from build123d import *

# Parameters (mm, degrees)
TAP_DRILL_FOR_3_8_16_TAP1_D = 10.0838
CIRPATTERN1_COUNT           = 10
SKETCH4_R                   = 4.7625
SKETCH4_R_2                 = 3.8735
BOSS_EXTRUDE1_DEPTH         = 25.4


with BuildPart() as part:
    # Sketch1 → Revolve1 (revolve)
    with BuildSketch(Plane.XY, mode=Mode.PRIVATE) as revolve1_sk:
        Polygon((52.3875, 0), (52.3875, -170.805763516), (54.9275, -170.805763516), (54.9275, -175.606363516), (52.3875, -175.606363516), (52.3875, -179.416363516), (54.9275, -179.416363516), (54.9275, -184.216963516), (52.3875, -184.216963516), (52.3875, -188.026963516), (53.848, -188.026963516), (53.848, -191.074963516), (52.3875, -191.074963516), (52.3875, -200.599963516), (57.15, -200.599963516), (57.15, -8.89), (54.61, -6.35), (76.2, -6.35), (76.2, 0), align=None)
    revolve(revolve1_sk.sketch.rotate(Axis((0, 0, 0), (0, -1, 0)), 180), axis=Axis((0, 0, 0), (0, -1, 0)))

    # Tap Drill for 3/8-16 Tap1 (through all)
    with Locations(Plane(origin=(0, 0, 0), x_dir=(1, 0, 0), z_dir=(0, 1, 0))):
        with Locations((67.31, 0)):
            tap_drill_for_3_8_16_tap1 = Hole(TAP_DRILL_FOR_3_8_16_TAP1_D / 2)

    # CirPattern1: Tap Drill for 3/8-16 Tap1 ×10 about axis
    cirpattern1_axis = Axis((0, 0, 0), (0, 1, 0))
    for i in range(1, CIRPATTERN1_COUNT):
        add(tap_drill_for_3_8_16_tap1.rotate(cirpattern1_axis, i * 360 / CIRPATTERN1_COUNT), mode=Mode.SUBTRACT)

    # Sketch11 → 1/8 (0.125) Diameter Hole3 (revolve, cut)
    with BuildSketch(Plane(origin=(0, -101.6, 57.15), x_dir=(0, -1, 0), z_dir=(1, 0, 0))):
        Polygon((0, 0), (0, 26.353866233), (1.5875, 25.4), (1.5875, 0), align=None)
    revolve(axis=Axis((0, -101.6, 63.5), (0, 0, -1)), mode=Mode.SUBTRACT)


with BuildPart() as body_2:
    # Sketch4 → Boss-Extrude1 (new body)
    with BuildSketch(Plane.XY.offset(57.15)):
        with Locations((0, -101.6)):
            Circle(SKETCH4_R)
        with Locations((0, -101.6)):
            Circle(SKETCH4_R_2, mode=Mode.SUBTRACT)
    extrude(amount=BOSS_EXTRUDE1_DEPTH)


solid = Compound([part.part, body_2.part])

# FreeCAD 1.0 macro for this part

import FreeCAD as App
import Part
import Sketcher
from FreeCAD import Vector
Q = App.Units.Quantity


def add_polygon(sketch, points):
    """Adds a closed chain of lines whose ends are joined by coincident constraints."""
    first, n = sketch.GeometryCount, len(points)
    for a, b in zip(points, points[1:] + points[:1]):
        sketch.addGeometry(Part.LineSegment(App.Vector(*a, 0), App.Vector(*b, 0)), False)
    for i in range(n):
        sketch.addConstraint(Sketcher.Constraint("Coincident", first + i, 2, first + (i + 1) % n, 1))

doc = App.newDocument("Part")
body = doc.addObject("PartDesign::Body", "Body")

sketch1 = body.newObject("Sketcher::SketchObject", "Sketch")
sketch1.AttachmentSupport = (doc.getObject("XY_Plane"), [""])
sketch1.MapMode = "FlatFace"
add_polygon(sketch1, [(52.4, 0), (52.4, -170.8), (54.9, -170.8), (54.9, -175.6), (52.4, -175.6), (52.4, -179.4), (54.9, -179.4), (54.9, -184.2), (52.4, -184.2), (52.4, -188), (53.8, -188), (53.8, -191.1), (52.4, -191.1), (52.4, -200.6), (57.1, -200.6), (57.1, -8.9), (54.6, -6.3), (76.2, -6.3), (76.2, 0)])
sketch1.addConstraint([
    Sketcher.Constraint("Vertical", 0),
    Sketcher.Constraint("Horizontal", 1),
    Sketcher.Constraint("Vertical", 2),
    Sketcher.Constraint("Horizontal", 3),
    Sketcher.Constraint("Vertical", 4),
    Sketcher.Constraint("Horizontal", 5),
    Sketcher.Constraint("Vertical", 6),
    Sketcher.Constraint("Horizontal", 7),
    Sketcher.Constraint("Vertical", 8),
    Sketcher.Constraint("Horizontal", 9),
    Sketcher.Constraint("Vertical", 10),
    Sketcher.Constraint("Horizontal", 11),
    Sketcher.Constraint("Vertical", 12),
    Sketcher.Constraint("Horizontal", 13),
    Sketcher.Constraint("Vertical", 14),
    Sketcher.Constraint("Horizontal", 16),
    Sketcher.Constraint("Vertical", 17),
    Sketcher.Constraint("Horizontal", 18),
    Sketcher.Constraint("PointOnObject", 17, 2, -1),
    Sketcher.Constraint("Vertical", 0, 2, 3, 2),
    Sketcher.Constraint("Vertical", 2, 2, 5, 2),
    Sketcher.Constraint("Vertical", 4, 2, 7, 2),
    Sketcher.Constraint("Vertical", 8, 2, 11, 2),
    Sketcher.Constraint("Equal", 2, 6),
    Sketcher.Constraint("Equal", 4, 8),
    Sketcher.Constraint("DistanceX", 1, 1, 1, 2, Q("0.1 in")),
    Sketcher.Constraint("DistanceX", -1, 1, 16, 2, Q("3 in")),
    Sketcher.Constraint("Angle", 15, Q("135 deg")),
    Sketcher.Constraint("DistanceX", 16, 1, 16, 2, Q("0.85 in")),
    Sketcher.Constraint("DistanceY", 4, 2, 4, 1, Q("0.15 in")),
    Sketcher.Constraint("DistanceY", 10, 2, 10, 1, Q("0.12 in")),
    Sketcher.Constraint("DistanceY", 17, 1, 17, 2, Q("0.25 in")),
    Sketcher.Constraint("DistanceX", 15, 2, 14, 2, Q("0.1 in")),
    Sketcher.Constraint("DistanceX", 13, 1, 13, 2, Q("0.1875 in")),
    Sketcher.Constraint("DistanceY", 2, 2, 2, 1, Q("0.189 in")),
    Sketcher.Constraint("DistanceY", 12, 2, 12, 1, Q("0.375 in")),
    Sketcher.Constraint("DistanceX", -1, 1, 9, 2, Q("2.12 in")),
    Sketcher.Constraint("DistanceY", 0, 2, 0, 1, 170.805764),
])
revolution = body.newObject("PartDesign::Revolution", "Revolution")
revolution.Profile = sketch1
revolution.ReferenceAxis = (sketch1, ["V_Axis"])
revolution.Angle = 360

sketch2 = body.newObject("Sketcher::SketchObject", "Sketch001")
sketch2.AttachmentSupport = (doc.getObject("XZ_Plane"), [""])
sketch2.MapMode = "FlatFace"
sketch2.addGeometry(Part.Circle(Vector(67, 0, 0), Vector(0, 0, 1), 5), False)
sketch2.addConstraint([
    Sketcher.Constraint("PointOnObject", 0, 3, -1),
    Sketcher.Constraint("Diameter", 0, Q("0.397 in")),
    Sketcher.Constraint("DistanceX", -1, 1, 0, 3, Q("2.65 in")),
])
doc.recompute()
hole = body.newObject("PartDesign::Hole", "Hole")
hole.Profile = sketch2
hole.ThreadType = "None"
hole.Diameter = Q("0.397 in")
hole.DepthType = "ThroughAll"
hole.Reversed = True
doc.recompute()

polarpattern = body.newObject("PartDesign::PolarPattern", "PolarPattern")
polarpattern.Originals = [hole]
polarpattern.Axis = (doc.getObject("Y_Axis"), [""])
polarpattern.Angle = 360
polarpattern.Occurrences = 10
body.Tip = polarpattern

sketch3 = body.newObject("Sketcher::SketchObject", "Sketch002")
sketch3.AttachmentSupport = (doc.getObject("YZ_Plane"), [""])
sketch3.MapMode = "FlatFace"
add_polygon(sketch3, [(-101.6, 30.8), (-101.6, 57.1), (-103.2, 57.1), (-103.2, 31.8)])
sketch3.addGeometry(Part.LineSegment(Vector(-101.6, 57.1, 0), Vector(-101.6, 30.8, 0)), True)
sketch3.addConstraint([
    Sketcher.Constraint("Vertical", 0),
    Sketcher.Constraint("Horizontal", 1),
    Sketcher.Constraint("Vertical", 2),
    Sketcher.Constraint("Vertical", 4),
    Sketcher.Constraint("Coincident", 4, 1, 0, 2),
    Sketcher.Constraint("Equal", 0, 4),
    Sketcher.Constraint("DistanceY", 2, 2, 2, 1, Q("1 in")),
    Sketcher.Constraint("DistanceX", 0, 2, -1, 1, Q("4 in")),
    Sketcher.Constraint("Angle", 3, Q("-31 deg")),
    Sketcher.Constraint("DistanceX", 1, 2, 1, 1, Q("0.0625 in")),
    Sketcher.Constraint("DistanceY", -1, 1, 0, 2, Q("2.25 in")),
])
groove = body.newObject("PartDesign::Groove", "Groove")
groove.Profile = sketch3
groove.ReferenceAxis = (sketch3, ["Axis0"])
groove.Angle = 360
body2 = doc.addObject("PartDesign::Body", "Body001")

sketch4 = body2.newObject("Sketcher::SketchObject", "Sketch003")
sketch4.AttachmentSupport = (doc.getObject("XY_Plane001"), [""])
sketch4.MapMode = "FlatFace"
sketch4.AttachmentOffset = App.Placement(Vector(0, 0, 2.25 * 25.4), App.Rotation())
sketch4.addGeometry([
    Part.Circle(Vector(0, -101.6, 0), Vector(0, 0, 1), 4.8),
    Part.Circle(Vector(0, -101.6, 0), Vector(0, 0, 1), 3.9),
], False)
sketch4.addConstraint([
    Sketcher.Constraint("Coincident", 1, 3, 0, 3),
    Sketcher.Constraint("PointOnObject", 0, 3, -2),
    Sketcher.Constraint("Diameter", 0, Q("0.375 in")),
    Sketcher.Constraint("Diameter", 1, Q("0.305 in")),
    Sketcher.Constraint("DistanceY", 0, 3, -1, 1, Q("4 in")),
])
pad1 = body2.newObject("PartDesign::Pad", "Pad")
pad1.Profile = sketch4
pad1.Length = Q("1 in")

doc.recompute()
